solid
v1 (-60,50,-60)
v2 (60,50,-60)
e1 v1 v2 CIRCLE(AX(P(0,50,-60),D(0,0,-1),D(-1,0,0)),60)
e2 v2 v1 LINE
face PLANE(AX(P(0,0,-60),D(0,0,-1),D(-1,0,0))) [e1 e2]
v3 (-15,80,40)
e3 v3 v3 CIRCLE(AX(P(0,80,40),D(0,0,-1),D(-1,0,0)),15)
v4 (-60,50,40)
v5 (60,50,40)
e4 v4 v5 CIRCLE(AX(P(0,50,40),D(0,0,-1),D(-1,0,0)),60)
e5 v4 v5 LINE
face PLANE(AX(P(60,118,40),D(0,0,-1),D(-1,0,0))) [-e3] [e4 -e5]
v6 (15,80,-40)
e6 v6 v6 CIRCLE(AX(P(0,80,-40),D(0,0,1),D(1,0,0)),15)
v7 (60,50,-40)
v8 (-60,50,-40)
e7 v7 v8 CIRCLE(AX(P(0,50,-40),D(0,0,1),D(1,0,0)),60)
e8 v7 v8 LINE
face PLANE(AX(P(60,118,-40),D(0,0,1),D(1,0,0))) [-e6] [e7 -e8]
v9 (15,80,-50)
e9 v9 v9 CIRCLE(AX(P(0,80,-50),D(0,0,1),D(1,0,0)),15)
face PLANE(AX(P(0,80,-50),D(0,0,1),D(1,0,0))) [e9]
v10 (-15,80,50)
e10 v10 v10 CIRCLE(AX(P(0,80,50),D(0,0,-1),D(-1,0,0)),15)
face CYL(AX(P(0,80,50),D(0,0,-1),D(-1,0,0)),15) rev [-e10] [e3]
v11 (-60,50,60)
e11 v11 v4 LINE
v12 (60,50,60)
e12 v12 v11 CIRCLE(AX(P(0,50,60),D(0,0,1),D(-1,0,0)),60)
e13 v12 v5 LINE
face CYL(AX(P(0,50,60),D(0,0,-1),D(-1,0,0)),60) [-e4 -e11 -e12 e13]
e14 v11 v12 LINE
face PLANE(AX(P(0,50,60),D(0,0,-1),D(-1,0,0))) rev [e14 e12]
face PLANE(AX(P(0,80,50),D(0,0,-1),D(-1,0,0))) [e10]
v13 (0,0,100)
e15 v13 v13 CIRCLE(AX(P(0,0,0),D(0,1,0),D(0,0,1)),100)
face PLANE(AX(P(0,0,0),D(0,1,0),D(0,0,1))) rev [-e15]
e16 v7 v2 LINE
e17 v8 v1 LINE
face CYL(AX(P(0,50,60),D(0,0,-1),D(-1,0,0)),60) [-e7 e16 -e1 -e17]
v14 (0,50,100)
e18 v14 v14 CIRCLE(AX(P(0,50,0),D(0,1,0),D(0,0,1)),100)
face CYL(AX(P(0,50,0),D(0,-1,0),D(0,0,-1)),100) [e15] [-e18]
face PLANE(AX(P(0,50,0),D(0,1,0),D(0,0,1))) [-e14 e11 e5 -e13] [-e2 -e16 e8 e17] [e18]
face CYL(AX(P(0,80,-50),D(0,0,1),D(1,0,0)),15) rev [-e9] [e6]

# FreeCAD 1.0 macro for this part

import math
import FreeCAD as App
import Part
import Sketcher

doc = App.newDocument("Part")
body = doc.addObject("PartDesign::Body", "Body")

# Sketch on XZ plane
sketch1 = body.newObject("Sketcher::SketchObject", "Sketch")
sketch1.AttachmentSupport = (doc.getObject("XZ_Plane"), [""])
sketch1.MapMode = "FlatFace"
sketch1.addGeometry(Part.Circle(App.Vector(0, 0, 0), App.Vector(0, 0, 1), 100), False)
sketch1.addConstraint([
    Sketcher.Constraint("Coincident", 0, 3, -1, 1),
    Sketcher.Constraint("Diameter", 0, 200.0),
])
pad1 = body.newObject("PartDesign::Pad", "Pad")
pad1.Profile = sketch1
pad1.Length = 50
pad1.Reversed = True

# Sketch on XY plane
sketch2 = body.newObject("Sketcher::SketchObject", "Sketch001")
sketch2.AttachmentSupport = (doc.getObject("XY_Plane"), [""])
sketch2.MapMode = "FlatFace"
sketch2.addGeometry([
    Part.LineSegment(App.Vector(-60, 50, 0), App.Vector(60, 50, 0)),
    Part.ArcOfCircle(Part.Circle(App.Vector(0, 50, 0), App.Vector(0, 0, 1), 60), math.radians(0), math.radians(180)),
], False)
sketch2.addConstraint([
    Sketcher.Constraint("Coincident", 0, 1, 1, 2),
    Sketcher.Constraint("Coincident", 1, 1, 0, 2),
    Sketcher.Constraint("Horizontal", 0),
    Sketcher.Constraint("PointOnObject", 1, 3, -2),
    Sketcher.Constraint("Horizontal", 1, 3, 0, 1),
    Sketcher.Constraint("Radius", 1, 60.0),
    Sketcher.Constraint("DistanceY", -1, 1, 1, 3, 50.0),
])
pad2 = body.newObject("PartDesign::Pad", "Pad001")
pad2.Profile = sketch2
pad2.Length = 60

# Sketch on XY plane
sketch3 = body.newObject("Sketcher::SketchObject", "Sketch002")
sketch3.AttachmentSupport = (doc.getObject("XY_Plane"), [""])
sketch3.MapMode = "FlatFace"
sketch3.addGeometry([
    Part.LineSegment(App.Vector(60, 50, 0), App.Vector(-60, 50, 0)),
    Part.ArcOfCircle(Part.Circle(App.Vector(0, 50, 0), App.Vector(0, 0, 1), 60), math.radians(0), math.radians(180)),
], False)
sketch3.addConstraint([
    Sketcher.Constraint("Coincident", 0, 1, 1, 1),
    Sketcher.Constraint("Coincident", 1, 2, 0, 2),
    Sketcher.Constraint("Horizontal", 0),
    Sketcher.Constraint("PointOnObject", 1, 3, -2),
    Sketcher.Constraint("Horizontal", 1, 3, 0, 1),
    Sketcher.Constraint("Radius", 1, 60.0),
    Sketcher.Constraint("DistanceY", -1, 1, 1, 3, 50.0),
])
pad3 = body.newObject("PartDesign::Pad", "Pad002")
pad3.Profile = sketch3
pad3.Length = 60
pad3.Reversed = True

# Sketch on XZ plane
sketch4 = body.newObject("Sketcher::SketchObject", "Sketch003")
sketch4.AttachmentSupport = (doc.getObject("XZ_Plane"), [""])
sketch4.MapMode = "FlatFace"
sketch4.AttachmentOffset = App.Placement(App.Vector(0, 0, -50), App.Rotation())
sketch4.addGeometry([
    Part.LineSegment(App.Vector(-60, -40, 0), App.Vector(-60, 40, 0)),
    Part.LineSegment(App.Vector(-60, 40, 0), App.Vector(60, 40, 0)),
    Part.LineSegment(App.Vector(60, 40, 0), App.Vector(60, -40, 0)),
    Part.LineSegment(App.Vector(60, -40, 0), App.Vector(-60, -40, 0)),
], False)
sketch4.addConstraint([
    Sketcher.Constraint("Coincident", 0, 2, 1, 1),
    Sketcher.Constraint("Coincident", 1, 2, 2, 1),
    Sketcher.Constraint("Coincident", 2, 2, 3, 1),
    Sketcher.Constraint("Coincident", 3, 2, 0, 1),
    Sketcher.Constraint("Vertical", 0),
    Sketcher.Constraint("Horizontal", 1),
    Sketcher.Constraint("Vertical", 2),
    Sketcher.Constraint("Horizontal", 3),
    Sketcher.Constraint("Symmetric", 0, 2, 2, 2, -1, 1),
    Sketcher.Constraint("DistanceX", 1, 1, 1, 2, 120.0),
    Sketcher.Constraint("DistanceY", 0, 1, 0, 2, 80.0),
])
pocket1 = body.newObject("PartDesign::Pocket", "Pocket")
pocket1.Profile = sketch4
pocket1.Length = 68

# Sketch on XY plane
sketch5 = body.newObject("Sketcher::SketchObject", "Sketch004")
sketch5.AttachmentSupport = (doc.getObject("XY_Plane"), [""])
sketch5.MapMode = "FlatFace"
sketch5.AttachmentOffset = App.Placement(App.Vector(0, 0, 40), App.Rotation())
sketch5.addGeometry(Part.Circle(App.Vector(0, 80, 0), App.Vector(0, 0, 1), 15), False)
sketch5.addConstraint([
    Sketcher.Constraint("PointOnObject", 0, 3, -2),
    Sketcher.Constraint("Diameter", 0, 30.0),
    Sketcher.Constraint("DistanceY", -1, 1, 0, 3, 80.0),
])
pocket2 = body.newObject("PartDesign::Pocket", "Pocket001")
pocket2.Profile = sketch5
pocket2.Length = 10
pocket2.Reversed = True

# Sketch on XY plane
sketch6 = body.newObject("Sketcher::SketchObject", "Sketch005")
sketch6.AttachmentSupport = (doc.getObject("XY_Plane"), [""])
sketch6.MapMode = "FlatFace"
sketch6.AttachmentOffset = App.Placement(App.Vector(0, 0, -40), App.Rotation())
sketch6.addGeometry(Part.Circle(App.Vector(0, 80, 0), App.Vector(0, 0, 1), 15), False)
sketch6.addConstraint([
    Sketcher.Constraint("PointOnObject", 0, 3, -2),
    Sketcher.Constraint("Diameter", 0, 30.0),
    Sketcher.Constraint("DistanceY", -1, 1, 0, 3, 80.0),
])
pocket3 = body.newObject("PartDesign::Pocket", "Pocket002")
pocket3.Profile = sketch6
pocket3.Length = 10

doc.recompute()
